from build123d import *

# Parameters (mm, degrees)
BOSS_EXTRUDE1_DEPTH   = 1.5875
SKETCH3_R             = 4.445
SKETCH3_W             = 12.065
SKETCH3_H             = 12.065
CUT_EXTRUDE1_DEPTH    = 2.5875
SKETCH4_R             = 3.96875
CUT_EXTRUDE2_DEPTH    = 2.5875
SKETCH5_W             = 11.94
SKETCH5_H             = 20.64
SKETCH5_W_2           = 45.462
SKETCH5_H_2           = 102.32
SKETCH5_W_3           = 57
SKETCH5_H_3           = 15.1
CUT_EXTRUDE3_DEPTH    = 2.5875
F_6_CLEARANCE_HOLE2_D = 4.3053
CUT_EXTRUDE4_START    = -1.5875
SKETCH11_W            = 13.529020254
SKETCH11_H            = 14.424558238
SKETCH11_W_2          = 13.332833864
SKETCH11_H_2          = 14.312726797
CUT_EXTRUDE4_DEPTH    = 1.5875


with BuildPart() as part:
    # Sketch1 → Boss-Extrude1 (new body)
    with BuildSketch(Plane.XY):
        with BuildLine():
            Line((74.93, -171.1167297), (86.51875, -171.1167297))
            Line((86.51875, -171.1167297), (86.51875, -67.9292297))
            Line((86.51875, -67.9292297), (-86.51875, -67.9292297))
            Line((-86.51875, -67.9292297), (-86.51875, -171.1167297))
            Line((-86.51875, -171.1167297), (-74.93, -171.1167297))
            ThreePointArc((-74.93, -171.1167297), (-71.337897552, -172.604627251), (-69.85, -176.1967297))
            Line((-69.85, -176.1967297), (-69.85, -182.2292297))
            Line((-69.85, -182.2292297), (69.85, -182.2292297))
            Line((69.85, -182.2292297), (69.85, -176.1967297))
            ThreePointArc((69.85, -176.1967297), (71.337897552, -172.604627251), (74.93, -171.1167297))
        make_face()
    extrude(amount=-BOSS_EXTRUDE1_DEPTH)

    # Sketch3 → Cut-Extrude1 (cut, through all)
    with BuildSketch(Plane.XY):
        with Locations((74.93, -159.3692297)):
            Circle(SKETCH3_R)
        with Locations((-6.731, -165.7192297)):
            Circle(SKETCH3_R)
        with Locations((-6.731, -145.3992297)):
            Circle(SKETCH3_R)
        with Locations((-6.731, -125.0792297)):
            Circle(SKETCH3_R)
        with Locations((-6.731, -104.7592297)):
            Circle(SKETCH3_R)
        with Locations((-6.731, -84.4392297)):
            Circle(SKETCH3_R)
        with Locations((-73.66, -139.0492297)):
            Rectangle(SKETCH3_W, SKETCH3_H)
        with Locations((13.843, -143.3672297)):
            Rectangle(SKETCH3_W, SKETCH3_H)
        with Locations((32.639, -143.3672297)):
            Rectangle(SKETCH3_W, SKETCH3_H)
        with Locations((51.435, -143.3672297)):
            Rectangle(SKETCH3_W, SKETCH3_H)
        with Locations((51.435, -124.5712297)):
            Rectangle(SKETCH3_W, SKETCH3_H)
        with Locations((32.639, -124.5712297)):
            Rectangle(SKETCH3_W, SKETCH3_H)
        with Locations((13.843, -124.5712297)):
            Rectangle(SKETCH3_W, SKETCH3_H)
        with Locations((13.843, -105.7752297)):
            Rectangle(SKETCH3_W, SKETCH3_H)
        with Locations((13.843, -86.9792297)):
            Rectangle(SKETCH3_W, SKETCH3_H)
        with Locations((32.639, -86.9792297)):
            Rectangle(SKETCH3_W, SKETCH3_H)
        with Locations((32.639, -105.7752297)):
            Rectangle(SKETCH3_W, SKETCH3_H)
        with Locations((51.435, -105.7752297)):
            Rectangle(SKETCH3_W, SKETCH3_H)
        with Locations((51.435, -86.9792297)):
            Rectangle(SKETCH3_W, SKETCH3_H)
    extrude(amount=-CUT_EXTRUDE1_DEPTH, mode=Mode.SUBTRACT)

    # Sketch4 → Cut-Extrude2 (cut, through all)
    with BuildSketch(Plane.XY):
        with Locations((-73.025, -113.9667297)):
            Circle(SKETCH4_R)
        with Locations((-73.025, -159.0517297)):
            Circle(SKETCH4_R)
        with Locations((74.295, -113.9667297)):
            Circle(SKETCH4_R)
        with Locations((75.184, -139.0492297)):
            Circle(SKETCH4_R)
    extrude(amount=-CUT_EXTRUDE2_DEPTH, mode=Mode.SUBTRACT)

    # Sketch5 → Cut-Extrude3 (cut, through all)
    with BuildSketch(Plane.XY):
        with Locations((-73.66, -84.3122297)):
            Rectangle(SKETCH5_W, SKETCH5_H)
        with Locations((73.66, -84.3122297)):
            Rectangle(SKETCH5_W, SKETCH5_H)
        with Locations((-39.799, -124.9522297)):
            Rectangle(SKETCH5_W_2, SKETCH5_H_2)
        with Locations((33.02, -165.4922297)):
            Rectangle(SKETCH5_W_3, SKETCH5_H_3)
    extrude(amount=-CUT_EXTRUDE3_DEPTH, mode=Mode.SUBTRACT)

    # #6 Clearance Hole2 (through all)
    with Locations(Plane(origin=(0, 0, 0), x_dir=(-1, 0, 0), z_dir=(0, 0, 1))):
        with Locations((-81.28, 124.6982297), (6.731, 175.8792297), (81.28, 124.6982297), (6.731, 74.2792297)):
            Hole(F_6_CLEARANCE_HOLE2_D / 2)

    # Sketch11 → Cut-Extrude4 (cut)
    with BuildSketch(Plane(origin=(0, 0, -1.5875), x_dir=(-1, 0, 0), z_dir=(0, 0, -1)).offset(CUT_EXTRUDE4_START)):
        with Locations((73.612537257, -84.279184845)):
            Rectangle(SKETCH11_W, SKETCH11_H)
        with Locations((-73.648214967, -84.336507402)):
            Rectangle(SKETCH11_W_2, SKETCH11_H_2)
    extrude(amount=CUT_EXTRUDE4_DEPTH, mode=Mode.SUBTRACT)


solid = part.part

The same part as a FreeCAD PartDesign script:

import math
import FreeCAD as App
import Part
import Sketcher
Q = App.Units.Quantity


def add_polygon(sketch, points):
    """Adds a closed chain of lines whose ends are joined by coincident constraints."""
    first, n = sketch.GeometryCount, len(points)
    for a, b in zip(points, points[1:] + points[:1]):
        sketch.addGeometry(Part.LineSegment(App.Vector(*a, 0), App.Vector(*b, 0)), False)
    for i in range(n):
        sketch.addConstraint(Sketcher.Constraint("Coincident", first + i, 2, first + (i + 1) % n, 1))

doc = App.newDocument("Part")
body = doc.addObject("PartDesign::Body", "Body")

# Sketch on XY plane
sketch1 = doc.addObject("Sketcher::SketchObject", "Sketch")
body.addObject(sketch1)
sketch1.AttachmentSupport = (doc.XY_Plane, [""])
sketch1.MapMode = "FlatFace"
sketch1.addGeometry([
    Part.LineSegment(App.Vector(75, -171, 0), App.Vector(87, -171, 0)),  # 0
    Part.LineSegment(App.Vector(87, -171, 0), App.Vector(87, -68, 0)),  # 1
    Part.LineSegment(App.Vector(87, -68, 0), App.Vector(-87, -68, 0)),  # 2
    Part.LineSegment(App.Vector(-87, -68, 0), App.Vector(-87, -171, 0)),  # 3
    Part.LineSegment(App.Vector(-87, -171, 0), App.Vector(-75, -171, 0)),  # 4
    Part.ArcOfCircle(Part.Circle(App.Vector(-75, -176, 0), App.Vector(0, 0, 1), 5), math.radians(0), math.radians(90)),  # 5
    Part.LineSegment(App.Vector(-70, -176, 0), App.Vector(-70, -182, 0)),  # 6
    Part.LineSegment(App.Vector(-70, -182, 0), App.Vector(70, -182, 0)),  # 7
    Part.LineSegment(App.Vector(70, -182, 0), App.Vector(70, -176, 0)),  # 8
    Part.ArcOfCircle(Part.Circle(App.Vector(75, -176, 0), App.Vector(0, 0, 1), 5), math.radians(90), math.radians(180)),  # 9
], False)
sketch1.addConstraint([
    Sketcher.Constraint("Coincident", 0, 2, 1, 1),
    Sketcher.Constraint("Coincident", 1, 2, 2, 1),
    Sketcher.Constraint("Coincident", 2, 2, 3, 1),
    Sketcher.Constraint("Coincident", 3, 2, 4, 1),
    Sketcher.Constraint("Tangent", 4, 2, 5, 2),
    Sketcher.Constraint("Tangent", 5, 1, 6, 1),
    Sketcher.Constraint("Coincident", 6, 2, 7, 1),
    Sketcher.Constraint("Coincident", 7, 2, 8, 1),
    Sketcher.Constraint("Tangent", 8, 2, 9, 2),
    Sketcher.Constraint("Tangent", 9, 1, 0, 1),
    Sketcher.Constraint("Horizontal", 0),
    Sketcher.Constraint("Vertical", 1),
    Sketcher.Constraint("Horizontal", 2),
    Sketcher.Constraint("Vertical", 3),
    Sketcher.Constraint("Horizontal", 4),
    Sketcher.Constraint("Vertical", 6),
    Sketcher.Constraint("Horizontal", 7),
    Sketcher.Constraint("Vertical", 8),
    Sketcher.Constraint("Equal", 5, 9),
    Sketcher.Constraint("Symmetric", 5, 3, 9, 3, -2),
    Sketcher.Constraint("Equal", 0, 4),
    Sketcher.Constraint("Radius", 5, Q("0.2 in")),
    Sketcher.Constraint("DistanceX", 7, 1, 7, 2, Q("5.5 in")),
    Sketcher.Constraint("DistanceY", 6, 2, 2, 2, Q("4.5 in")),
    Sketcher.Constraint("DistanceX", 2, 2, 2, 1, Q("6.8125 in")),
    Sketcher.Constraint("DistanceY", 1, 1, 1, 2, Q("4.0625 in")),
    Sketcher.Constraint("DistanceY", 5, 3, -1, 1, Q("176.19673 mm")),
])
pad1 = doc.addObject("PartDesign::Pad", "Pad")
body.addObject(pad1)
pad1.Profile = sketch1
pad1.Length = Q("0.0625 in")
pad1.Reversed = True

# Sketch on XY plane
sketch2 = doc.addObject("Sketcher::SketchObject", "Sketch001")
body.addObject(sketch2)
sketch2.AttachmentSupport = (doc.XY_Plane, [""])
sketch2.MapMode = "FlatFace"
sketch2.addGeometry(Part.Circle(App.Vector(74.9, -159.4, 0), App.Vector(0, 0, 1), 4.4), False)  # 0
sketch2.addGeometry(Part.Circle(App.Vector(-6.7, -165.7, 0), App.Vector(0, 0, 1), 4.4), False)  # 1
sketch2.addGeometry(Part.Circle(App.Vector(-6.7, -145.4, 0), App.Vector(0, 0, 1), 4.4), False)  # 2
sketch2.addGeometry(Part.Circle(App.Vector(-6.7, -125.1, 0), App.Vector(0, 0, 1), 4.4), False)  # 3
sketch2.addGeometry(Part.Circle(App.Vector(-6.7, -104.8, 0), App.Vector(0, 0, 1), 4.4), False)  # 4
sketch2.addGeometry(Part.Circle(App.Vector(-6.7, -84.4, 0), App.Vector(0, 0, 1), 4.4), False)  # 5
add_polygon(sketch2, [(-79.7, -133), (-79.7, -145.1), (-67.6, -145.1), (-67.6, -133)])  # lines 6-9
add_polygon(sketch2, [(7.8, -137.3), (7.8, -149.4), (19.9, -149.4), (19.9, -137.3)])  # lines 10-13
add_polygon(sketch2, [(26.6, -137.3), (26.6, -149.4), (38.7, -149.4), (38.7, -137.3)])  # lines 14-17
add_polygon(sketch2, [(45.4, -137.3), (45.4, -149.4), (57.5, -149.4), (57.5, -137.3)])  # lines 18-21
add_polygon(sketch2, [(45.4, -118.5), (45.4, -130.6), (57.5, -130.6), (57.5, -118.5)])  # lines 22-25
add_polygon(sketch2, [(26.6, -118.5), (26.6, -130.6), (38.7, -130.6), (38.7, -118.5)])  # lines 26-29
add_polygon(sketch2, [(7.8, -118.5), (7.8, -130.6), (19.9, -130.6), (19.9, -118.5)])  # lines 30-33
add_polygon(sketch2, [(7.8, -99.7), (7.8, -111.8), (19.9, -111.8), (19.9, -99.7)])  # lines 34-37
add_polygon(sketch2, [(7.8, -80.9), (7.8, -93), (19.9, -93), (19.9, -80.9)])  # lines 38-41
add_polygon(sketch2, [(26.6, -80.9), (26.6, -93), (38.7, -93), (38.7, -80.9)])  # lines 42-45
add_polygon(sketch2, [(26.6, -99.7), (26.6, -111.8), (38.7, -111.8), (38.7, -99.7)])  # lines 46-49
add_polygon(sketch2, [(45.4, -99.7), (45.4, -111.8), (57.5, -111.8), (57.5, -99.7)])  # lines 50-53
add_polygon(sketch2, [(45.4, -80.9), (45.4, -93), (57.5, -93), (57.5, -80.9)])  # lines 54-57
sketch2.addConstraint([
    Sketcher.Constraint("Vertical", 6),
    Sketcher.Constraint("Horizontal", 7),
    Sketcher.Constraint("Vertical", 8),
    Sketcher.Constraint("Horizontal", 9),
    Sketcher.Constraint("Vertical", 10),
    Sketcher.Constraint("Horizontal", 11),
    Sketcher.Constraint("Vertical", 12),
    Sketcher.Constraint("Horizontal", 13),
    Sketcher.Constraint("Vertical", 14),
    Sketcher.Constraint("Horizontal", 15),
    Sketcher.Constraint("Vertical", 16),
    Sketcher.Constraint("Horizontal", 17),
    Sketcher.Constraint("Vertical", 18),
    Sketcher.Constraint("Horizontal", 19),
    Sketcher.Constraint("Vertical", 20),
    Sketcher.Constraint("Horizontal", 21),
    Sketcher.Constraint("Vertical", 22),
    Sketcher.Constraint("Horizontal", 23),
    Sketcher.Constraint("Vertical", 24),
    Sketcher.Constraint("Horizontal", 25),
    Sketcher.Constraint("Vertical", 26),
    Sketcher.Constraint("Horizontal", 27),
    Sketcher.Constraint("Vertical", 28),
    Sketcher.Constraint("Horizontal", 29),
    Sketcher.Constraint("Vertical", 30),
    Sketcher.Constraint("Horizontal", 31),
    Sketcher.Constraint("Vertical", 32),
    Sketcher.Constraint("Horizontal", 33),
    Sketcher.Constraint("Vertical", 34),
    Sketcher.Constraint("Horizontal", 35),
    Sketcher.Constraint("Vertical", 36),
    Sketcher.Constraint("Horizontal", 37),
    Sketcher.Constraint("Vertical", 38),
    Sketcher.Constraint("Horizontal", 39),
    Sketcher.Constraint("Vertical", 40),
    Sketcher.Constraint("Horizontal", 41),
    Sketcher.Constraint("Vertical", 42),
    Sketcher.Constraint("Horizontal", 43),
    Sketcher.Constraint("Vertical", 44),
    Sketcher.Constraint("Horizontal", 45),
    Sketcher.Constraint("Vertical", 46),
    Sketcher.Constraint("Horizontal", 47),
    Sketcher.Constraint("Vertical", 48),
    Sketcher.Constraint("Horizontal", 49),
    Sketcher.Constraint("Vertical", 50),
    Sketcher.Constraint("Horizontal", 51),
    Sketcher.Constraint("Vertical", 52),
    Sketcher.Constraint("Horizontal", 53),
    Sketcher.Constraint("Vertical", 54),
    Sketcher.Constraint("Horizontal", 55),
    Sketcher.Constraint("Vertical", 56),
    Sketcher.Constraint("Horizontal", 57),
    Sketcher.Constraint("Equal", 0, 1),
    Sketcher.Constraint("Equal", 1, 2),
    Sketcher.Constraint("Equal", 2, 3),
    Sketcher.Constraint("Equal", 3, 4),
    Sketcher.Constraint("Equal", 4, 5),
    Sketcher.Constraint("Horizontal", 11, 2, 14, 2),
    Sketcher.Constraint("Horizontal", 13, 2, 16, 2),
    Sketcher.Constraint("Horizontal", 15, 2, 18, 2),
    Sketcher.Constraint("Horizontal", 17, 2, 20, 2),
    Sketcher.Constraint("Horizontal", 23, 2, 26, 2),
    Sketcher.Constraint("Horizontal", 25, 2, 28, 2),
    Sketcher.Constraint("Horizontal", 27, 2, 30, 2),
    Sketcher.Constraint("Horizontal", 29, 2, 32, 2),
    Sketcher.Constraint("Horizontal", 39, 2, 42, 2),
    Sketcher.Constraint("Horizontal", 41, 2, 44, 2),
    Sketcher.Constraint("Horizontal", 35, 2, 46, 2),
    Sketcher.Constraint("Horizontal", 37, 2, 48, 2),
    Sketcher.Constraint("Horizontal", 47, 2, 50, 2),
    Sketcher.Constraint("Horizontal", 49, 2, 52, 2),
    Sketcher.Constraint("Horizontal", 43, 2, 54, 2),
    Sketcher.Constraint("Horizontal", 45, 2, 56, 2),
    Sketcher.Constraint("Vertical", 1, 3, 2, 3),
    Sketcher.Constraint("Vertical", 2, 3, 3, 3),
    Sketcher.Constraint("Vertical", 3, 3, 4, 3),
    Sketcher.Constraint("Vertical", 4, 3, 5, 3),
    Sketcher.Constraint("Vertical", 21, 2, 22, 2),
    Sketcher.Constraint("Vertical", 20, 2, 23, 2),
    Sketcher.Constraint("Vertical", 17, 2, 26, 2),
    Sketcher.Constraint("Vertical", 16, 2, 27, 2),
    Sketcher.Constraint("Vertical", 13, 2, 30, 2),
    Sketcher.Constraint("Vertical", 12, 2, 31, 2),
    Sketcher.Constraint("Vertical", 33, 2, 34, 2),
    Sketcher.Constraint("Vertical", 32, 2, 35, 2),
    Sketcher.Constraint("Vertical", 37, 2, 38, 2),
    Sketcher.Constraint("Vertical", 36, 2, 39, 2),
    Sketcher.Constraint("Vertical", 29, 2, 42, 2),
    Sketcher.Constraint("Vertical", 28, 2, 43, 2),
    Sketcher.Constraint("Vertical", 45, 2, 46, 2),
    Sketcher.Constraint("Vertical", 44, 2, 47, 2),
    Sketcher.Constraint("Vertical", 25, 2, 50, 2),
    Sketcher.Constraint("Vertical", 24, 2, 51, 2),
    Sketcher.Constraint("Vertical", 53, 2, 54, 2),
    Sketcher.Constraint("Vertical", 52, 2, 55, 2),
    Sketcher.Constraint("Equal", 9, 11),
    Sketcher.Constraint("Equal", 13, 15),
    Sketcher.Constraint("Equal", 17, 19),
    Sketcher.Constraint("Equal", 57, 6),
    Sketcher.Constraint("Equal", 8, 10),
    Sketcher.Constraint("Equal", 20, 22),
    Sketcher.Constraint("Equal", 32, 34),
    Sketcher.Constraint("Equal", 36, 38),
    Sketcher.Constraint("Diameter", 0, Q("0.35 in")),
    Sketcher.Constraint("DistanceY", 1, 3, 2, 3, Q("0.8 in")),
    Sketcher.Constraint("DistanceY", 2, 3, 3, 3, Q("0.8 in")),
    Sketcher.Constraint("DistanceY", 3, 3, 4, 3, Q("0.8 in")),
    Sketcher.Constraint("DistanceY", 4, 3, 5, 3, Q("0.8 in")),
    Sketcher.Constraint("DistanceX", 7, 1, 7, 2, Q("0.475 in")),
    Sketcher.Constraint("DistanceX", -1, 1, 0, 3, Q("2.95 in")),
    Sketcher.Constraint("DistanceY", 1, 3, 0, 3, Q("0.25 in")),
    Sketcher.Constraint("DistanceX", 10, 2, 14, 2, Q("0.74 in")),
    Sketcher.Constraint("DistanceX", 14, 2, 18, 2, Q("0.74 in")),
    Sketcher.Constraint("DistanceY", 18, 2, 22, 2, Q("0.74 in")),
    Sketcher.Constraint("DistanceY", 30, 2, 34, 2, Q("0.74 in")),
    Sketcher.Constraint("DistanceY", 34, 2, 38, 2, Q("0.74 in")),
    Sketcher.Constraint("DistanceX", 1, 3, -1, 1, Q("0.265 in")),
    Sketcher.Constraint("DistanceY", 1, 3, 6, 2, Q("0.8125 in")),
    Sketcher.Constraint("DistanceX", 2, 3, 14, 2, Q("1.3125 in")),
    Sketcher.Constraint("DistanceX", 6, 2, -1, 1, Q("3.1375 in")),
    Sketcher.Constraint("DistanceY", 10, 2, 2, 3, Q("0.1575 in")),
    Sketcher.Constraint("DistanceY", 0, 3, -1, 1, Q("159.36923 mm")),
])
pocket1 = doc.addObject("PartDesign::Pocket", "Pocket")
body.addObject(pocket1)
pocket1.Profile = sketch2
pocket1.Type = "ThroughAll"

# Sketch on XY plane
sketch3 = doc.addObject("Sketcher::SketchObject", "Sketch002")
body.addObject(sketch3)
sketch3.AttachmentSupport = (doc.XY_Plane, [""])
sketch3.MapMode = "FlatFace"
sketch3.addGeometry([
    Part.Circle(App.Vector(-73, -114, 0), App.Vector(0, 0, 1), 4),
    Part.Circle(App.Vector(-73, -159.1, 0), App.Vector(0, 0, 1), 4),
    Part.Circle(App.Vector(74.3, -114, 0), App.Vector(0, 0, 1), 4),
    Part.Circle(App.Vector(75.2, -139, 0), App.Vector(0, 0, 1), 4),
], False)
sketch3.addConstraint([
    Sketcher.Constraint("Equal", 0, 1),
    Sketcher.Constraint("Equal", 1, 2),
    Sketcher.Constraint("Equal", 2, 3),
    Sketcher.Constraint("Horizontal", 0, 3, 2, 3),
    Sketcher.Constraint("Vertical", 0, 3, 1, 3),
    Sketcher.Constraint("Diameter", 0, Q("0.3125 in")),
    Sketcher.Constraint("DistanceX", 0, 3, 2, 3, Q("5.8 in")),
    Sketcher.Constraint("DistanceX", -1, 1, 3, 3, Q("2.96 in")),
    Sketcher.Constraint("DistanceX", 0, 3, -1, 1, Q("2.875 in")),
    Sketcher.Constraint("DistanceY", 1, 3, 0, 3, Q("1.775 in")),
    Sketcher.Constraint("DistanceY", 3, 3, 2, 3, Q("0.9875 in")),
    Sketcher.Constraint("DistanceY", 0, 3, -1, 1, Q("113.96673 mm")),
])
pocket2 = doc.addObject("PartDesign::Pocket", "Pocket001")
body.addObject(pocket2)
pocket2.Profile = sketch3
pocket2.Type = "ThroughAll"

# Sketch on XY plane
sketch4 = doc.addObject("Sketcher::SketchObject", "Sketch003")
body.addObject(sketch4)
sketch4.AttachmentSupport = (doc.XY_Plane, [""])
sketch4.MapMode = "FlatFace"
add_polygon(sketch4, [(-80, -74), (-80, -95), (-68, -95), (-68, -74)])  # lines 0-3
add_polygon(sketch4, [(68, -74), (68, -95), (80, -95), (80, -74)])  # lines 4-7
add_polygon(sketch4, [(-63, -74), (-63, -176), (-17, -176), (-17, -74)])  # lines 8-11
add_polygon(sketch4, [(5, -158), (5, -173), (62, -173), (62, -158)])  # lines 12-15
sketch4.addConstraint([
    Sketcher.Constraint("Vertical", 0),
    Sketcher.Constraint("Horizontal", 1),
    Sketcher.Constraint("Vertical", 2),
    Sketcher.Constraint("Horizontal", 3),
    Sketcher.Constraint("Vertical", 4),
    Sketcher.Constraint("Horizontal", 5),
    Sketcher.Constraint("Vertical", 6),
    Sketcher.Constraint("Horizontal", 7),
    Sketcher.Constraint("Vertical", 8),
    Sketcher.Constraint("Horizontal", 9),
    Sketcher.Constraint("Vertical", 10),
    Sketcher.Constraint("Horizontal", 11),
    Sketcher.Constraint("Vertical", 12),
    Sketcher.Constraint("Horizontal", 13),
    Sketcher.Constraint("Vertical", 14),
    Sketcher.Constraint("Horizontal", 15),
    Sketcher.Constraint("Symmetric", 1, 2, 4, 2, -2),
    Sketcher.Constraint("Symmetric", 3, 2, 6, 2, -2),
    Sketcher.Constraint("DistanceX", 0, 2, 4, 2, Q("5.8 in")),
    Sketcher.Constraint("DistanceX", 1, 1, 1, 2, Q("11.94 mm")),
    Sketcher.Constraint("DistanceX", 9, 1, 9, 2, Q("45.462 mm")),
    Sketcher.Constraint("DistanceX", 13, 1, 13, 2, Q("57 mm")),
    Sketcher.Constraint("DistanceY", 0, 2, 0, 1, Q("20.64 mm")),
    Sketcher.Constraint("DistanceY", 8, 2, 8, 1, Q("102.32 mm")),
    Sketcher.Constraint("DistanceY", 12, 2, 12, 1, Q("15.1 mm")),
    Sketcher.Constraint("DistanceX", 8, 2, -1, 1, Q("62.53 mm")),
    Sketcher.Constraint("DistanceX", -1, 1, 12, 2, Q("4.52 mm")),
    Sketcher.Constraint("DistanceY", 8, 2, 1, 2, Q("81.48 mm")),
    Sketcher.Constraint("DistanceY", 9, 2, 12, 2, Q("3.07 mm")),
    Sketcher.Constraint("DistanceY", 0, 2, -1, 1, Q("94.63223 mm")),
])
pocket3 = doc.addObject("PartDesign::Pocket", "Pocket002")
body.addObject(pocket3)
pocket3.Profile = sketch4
pocket3.Type = "ThroughAll"

# Sketch on XY plane
sketch5 = doc.addObject("Sketcher::SketchObject", "Sketch004")
body.addObject(sketch5)
sketch5.AttachmentSupport = (doc.XY_Plane, [""])
sketch5.MapMode = "FlatFace"
sketch5.addGeometry([
    Part.Circle(App.Vector(81.3, -124.7, 0), App.Vector(0, 0, 1), 2.2),
    Part.Circle(App.Vector(-6.7, -175.9, 0), App.Vector(0, 0, 1), 2.2),
    Part.Circle(App.Vector(-81.3, -124.7, 0), App.Vector(0, 0, 1), 2.2),
    Part.Circle(App.Vector(-6.7, -74.3, 0), App.Vector(0, 0, 1), 2.2),
], False)
sketch5.addConstraint([
    Sketcher.Constraint("Equal", 0, 1),
    Sketcher.Constraint("Equal", 1, 2),
    Sketcher.Constraint("Equal", 2, 3),
    Sketcher.Constraint("Symmetric", 0, 3, 2, 3, -2),
    Sketcher.Constraint("Vertical", 1, 3, 3, 3),
    Sketcher.Constraint("DistanceY", 1, 3, 3, 3, Q("4 in")),
    Sketcher.Constraint("Diameter", 0, Q("0.1695 in")),
    Sketcher.Constraint("DistanceX", -1, 1, 0, 3, Q("3.2 in")),
    Sketcher.Constraint("DistanceX", 1, 3, -1, 1, Q("0.265 in")),
    Sketcher.Constraint("DistanceY", 1, 3, 0, 3, Q("2.015 in")),
    Sketcher.Constraint("DistanceY", 0, 3, -1, 1, Q("124.69823 mm")),
])
doc.recompute()
hole = doc.addObject("PartDesign::Hole", "Hole")
body.addObject(hole)
hole.Profile = sketch5
hole.ThreadType = "None"
hole.Diameter = Q("0.1695 in")
hole.DepthType = "ThroughAll"

# Sketch on XY plane
sketch6 = doc.addObject("Sketcher::SketchObject", "Sketch005")
body.addObject(sketch6)
sketch6.AttachmentSupport = (doc.XY_Plane, [""])
sketch6.MapMode = "FlatFace"
add_polygon(sketch6, [(-67, -77), (-67, -91), (-80, -91), (-80, -77)])  # lines 0-3
add_polygon(sketch6, [(80, -77), (80, -91), (67, -91), (67, -77)])  # lines 4-7
sketch6.addConstraint([
    Sketcher.Constraint("Vertical", 0),
    Sketcher.Constraint("Horizontal", 1),
    Sketcher.Constraint("Vertical", 2),
    Sketcher.Constraint("Horizontal", 3),
    Sketcher.Constraint("Vertical", 4),
    Sketcher.Constraint("Horizontal", 5),
    Sketcher.Constraint("Vertical", 6),
    Sketcher.Constraint("Horizontal", 7),
    Sketcher.Constraint("DistanceX", 1, 2, 1, 1, Q("13.52902 mm")),
    Sketcher.Constraint("DistanceY", 0, 2, 0, 1, Q("14.424558 mm")),
    Sketcher.Constraint("DistanceX", -1, 1, 5, 2, Q("66.981798 mm")),
    Sketcher.Constraint("DistanceX", 5, 2, 5, 1, Q("13.332834 mm")),
    Sketcher.Constraint("DistanceY", 4, 2, 4, 1, Q("14.312727 mm")),
    Sketcher.Constraint("DistanceY", 4, 2, -1, 1, Q("91.492871 mm")),
    Sketcher.Constraint("DistanceX", 0, 2, 4, 2, Q("147.162659 mm")),
    Sketcher.Constraint("DistanceY", 6, 2, 3, 2, Q("0.113238 mm")),
])
pocket4 = doc.addObject("PartDesign::Pocket", "Pocket003")
body.addObject(pocket4)
pocket4.Profile = sketch6
pocket4.Length = Q("0.0625 in")

doc.recompute()
